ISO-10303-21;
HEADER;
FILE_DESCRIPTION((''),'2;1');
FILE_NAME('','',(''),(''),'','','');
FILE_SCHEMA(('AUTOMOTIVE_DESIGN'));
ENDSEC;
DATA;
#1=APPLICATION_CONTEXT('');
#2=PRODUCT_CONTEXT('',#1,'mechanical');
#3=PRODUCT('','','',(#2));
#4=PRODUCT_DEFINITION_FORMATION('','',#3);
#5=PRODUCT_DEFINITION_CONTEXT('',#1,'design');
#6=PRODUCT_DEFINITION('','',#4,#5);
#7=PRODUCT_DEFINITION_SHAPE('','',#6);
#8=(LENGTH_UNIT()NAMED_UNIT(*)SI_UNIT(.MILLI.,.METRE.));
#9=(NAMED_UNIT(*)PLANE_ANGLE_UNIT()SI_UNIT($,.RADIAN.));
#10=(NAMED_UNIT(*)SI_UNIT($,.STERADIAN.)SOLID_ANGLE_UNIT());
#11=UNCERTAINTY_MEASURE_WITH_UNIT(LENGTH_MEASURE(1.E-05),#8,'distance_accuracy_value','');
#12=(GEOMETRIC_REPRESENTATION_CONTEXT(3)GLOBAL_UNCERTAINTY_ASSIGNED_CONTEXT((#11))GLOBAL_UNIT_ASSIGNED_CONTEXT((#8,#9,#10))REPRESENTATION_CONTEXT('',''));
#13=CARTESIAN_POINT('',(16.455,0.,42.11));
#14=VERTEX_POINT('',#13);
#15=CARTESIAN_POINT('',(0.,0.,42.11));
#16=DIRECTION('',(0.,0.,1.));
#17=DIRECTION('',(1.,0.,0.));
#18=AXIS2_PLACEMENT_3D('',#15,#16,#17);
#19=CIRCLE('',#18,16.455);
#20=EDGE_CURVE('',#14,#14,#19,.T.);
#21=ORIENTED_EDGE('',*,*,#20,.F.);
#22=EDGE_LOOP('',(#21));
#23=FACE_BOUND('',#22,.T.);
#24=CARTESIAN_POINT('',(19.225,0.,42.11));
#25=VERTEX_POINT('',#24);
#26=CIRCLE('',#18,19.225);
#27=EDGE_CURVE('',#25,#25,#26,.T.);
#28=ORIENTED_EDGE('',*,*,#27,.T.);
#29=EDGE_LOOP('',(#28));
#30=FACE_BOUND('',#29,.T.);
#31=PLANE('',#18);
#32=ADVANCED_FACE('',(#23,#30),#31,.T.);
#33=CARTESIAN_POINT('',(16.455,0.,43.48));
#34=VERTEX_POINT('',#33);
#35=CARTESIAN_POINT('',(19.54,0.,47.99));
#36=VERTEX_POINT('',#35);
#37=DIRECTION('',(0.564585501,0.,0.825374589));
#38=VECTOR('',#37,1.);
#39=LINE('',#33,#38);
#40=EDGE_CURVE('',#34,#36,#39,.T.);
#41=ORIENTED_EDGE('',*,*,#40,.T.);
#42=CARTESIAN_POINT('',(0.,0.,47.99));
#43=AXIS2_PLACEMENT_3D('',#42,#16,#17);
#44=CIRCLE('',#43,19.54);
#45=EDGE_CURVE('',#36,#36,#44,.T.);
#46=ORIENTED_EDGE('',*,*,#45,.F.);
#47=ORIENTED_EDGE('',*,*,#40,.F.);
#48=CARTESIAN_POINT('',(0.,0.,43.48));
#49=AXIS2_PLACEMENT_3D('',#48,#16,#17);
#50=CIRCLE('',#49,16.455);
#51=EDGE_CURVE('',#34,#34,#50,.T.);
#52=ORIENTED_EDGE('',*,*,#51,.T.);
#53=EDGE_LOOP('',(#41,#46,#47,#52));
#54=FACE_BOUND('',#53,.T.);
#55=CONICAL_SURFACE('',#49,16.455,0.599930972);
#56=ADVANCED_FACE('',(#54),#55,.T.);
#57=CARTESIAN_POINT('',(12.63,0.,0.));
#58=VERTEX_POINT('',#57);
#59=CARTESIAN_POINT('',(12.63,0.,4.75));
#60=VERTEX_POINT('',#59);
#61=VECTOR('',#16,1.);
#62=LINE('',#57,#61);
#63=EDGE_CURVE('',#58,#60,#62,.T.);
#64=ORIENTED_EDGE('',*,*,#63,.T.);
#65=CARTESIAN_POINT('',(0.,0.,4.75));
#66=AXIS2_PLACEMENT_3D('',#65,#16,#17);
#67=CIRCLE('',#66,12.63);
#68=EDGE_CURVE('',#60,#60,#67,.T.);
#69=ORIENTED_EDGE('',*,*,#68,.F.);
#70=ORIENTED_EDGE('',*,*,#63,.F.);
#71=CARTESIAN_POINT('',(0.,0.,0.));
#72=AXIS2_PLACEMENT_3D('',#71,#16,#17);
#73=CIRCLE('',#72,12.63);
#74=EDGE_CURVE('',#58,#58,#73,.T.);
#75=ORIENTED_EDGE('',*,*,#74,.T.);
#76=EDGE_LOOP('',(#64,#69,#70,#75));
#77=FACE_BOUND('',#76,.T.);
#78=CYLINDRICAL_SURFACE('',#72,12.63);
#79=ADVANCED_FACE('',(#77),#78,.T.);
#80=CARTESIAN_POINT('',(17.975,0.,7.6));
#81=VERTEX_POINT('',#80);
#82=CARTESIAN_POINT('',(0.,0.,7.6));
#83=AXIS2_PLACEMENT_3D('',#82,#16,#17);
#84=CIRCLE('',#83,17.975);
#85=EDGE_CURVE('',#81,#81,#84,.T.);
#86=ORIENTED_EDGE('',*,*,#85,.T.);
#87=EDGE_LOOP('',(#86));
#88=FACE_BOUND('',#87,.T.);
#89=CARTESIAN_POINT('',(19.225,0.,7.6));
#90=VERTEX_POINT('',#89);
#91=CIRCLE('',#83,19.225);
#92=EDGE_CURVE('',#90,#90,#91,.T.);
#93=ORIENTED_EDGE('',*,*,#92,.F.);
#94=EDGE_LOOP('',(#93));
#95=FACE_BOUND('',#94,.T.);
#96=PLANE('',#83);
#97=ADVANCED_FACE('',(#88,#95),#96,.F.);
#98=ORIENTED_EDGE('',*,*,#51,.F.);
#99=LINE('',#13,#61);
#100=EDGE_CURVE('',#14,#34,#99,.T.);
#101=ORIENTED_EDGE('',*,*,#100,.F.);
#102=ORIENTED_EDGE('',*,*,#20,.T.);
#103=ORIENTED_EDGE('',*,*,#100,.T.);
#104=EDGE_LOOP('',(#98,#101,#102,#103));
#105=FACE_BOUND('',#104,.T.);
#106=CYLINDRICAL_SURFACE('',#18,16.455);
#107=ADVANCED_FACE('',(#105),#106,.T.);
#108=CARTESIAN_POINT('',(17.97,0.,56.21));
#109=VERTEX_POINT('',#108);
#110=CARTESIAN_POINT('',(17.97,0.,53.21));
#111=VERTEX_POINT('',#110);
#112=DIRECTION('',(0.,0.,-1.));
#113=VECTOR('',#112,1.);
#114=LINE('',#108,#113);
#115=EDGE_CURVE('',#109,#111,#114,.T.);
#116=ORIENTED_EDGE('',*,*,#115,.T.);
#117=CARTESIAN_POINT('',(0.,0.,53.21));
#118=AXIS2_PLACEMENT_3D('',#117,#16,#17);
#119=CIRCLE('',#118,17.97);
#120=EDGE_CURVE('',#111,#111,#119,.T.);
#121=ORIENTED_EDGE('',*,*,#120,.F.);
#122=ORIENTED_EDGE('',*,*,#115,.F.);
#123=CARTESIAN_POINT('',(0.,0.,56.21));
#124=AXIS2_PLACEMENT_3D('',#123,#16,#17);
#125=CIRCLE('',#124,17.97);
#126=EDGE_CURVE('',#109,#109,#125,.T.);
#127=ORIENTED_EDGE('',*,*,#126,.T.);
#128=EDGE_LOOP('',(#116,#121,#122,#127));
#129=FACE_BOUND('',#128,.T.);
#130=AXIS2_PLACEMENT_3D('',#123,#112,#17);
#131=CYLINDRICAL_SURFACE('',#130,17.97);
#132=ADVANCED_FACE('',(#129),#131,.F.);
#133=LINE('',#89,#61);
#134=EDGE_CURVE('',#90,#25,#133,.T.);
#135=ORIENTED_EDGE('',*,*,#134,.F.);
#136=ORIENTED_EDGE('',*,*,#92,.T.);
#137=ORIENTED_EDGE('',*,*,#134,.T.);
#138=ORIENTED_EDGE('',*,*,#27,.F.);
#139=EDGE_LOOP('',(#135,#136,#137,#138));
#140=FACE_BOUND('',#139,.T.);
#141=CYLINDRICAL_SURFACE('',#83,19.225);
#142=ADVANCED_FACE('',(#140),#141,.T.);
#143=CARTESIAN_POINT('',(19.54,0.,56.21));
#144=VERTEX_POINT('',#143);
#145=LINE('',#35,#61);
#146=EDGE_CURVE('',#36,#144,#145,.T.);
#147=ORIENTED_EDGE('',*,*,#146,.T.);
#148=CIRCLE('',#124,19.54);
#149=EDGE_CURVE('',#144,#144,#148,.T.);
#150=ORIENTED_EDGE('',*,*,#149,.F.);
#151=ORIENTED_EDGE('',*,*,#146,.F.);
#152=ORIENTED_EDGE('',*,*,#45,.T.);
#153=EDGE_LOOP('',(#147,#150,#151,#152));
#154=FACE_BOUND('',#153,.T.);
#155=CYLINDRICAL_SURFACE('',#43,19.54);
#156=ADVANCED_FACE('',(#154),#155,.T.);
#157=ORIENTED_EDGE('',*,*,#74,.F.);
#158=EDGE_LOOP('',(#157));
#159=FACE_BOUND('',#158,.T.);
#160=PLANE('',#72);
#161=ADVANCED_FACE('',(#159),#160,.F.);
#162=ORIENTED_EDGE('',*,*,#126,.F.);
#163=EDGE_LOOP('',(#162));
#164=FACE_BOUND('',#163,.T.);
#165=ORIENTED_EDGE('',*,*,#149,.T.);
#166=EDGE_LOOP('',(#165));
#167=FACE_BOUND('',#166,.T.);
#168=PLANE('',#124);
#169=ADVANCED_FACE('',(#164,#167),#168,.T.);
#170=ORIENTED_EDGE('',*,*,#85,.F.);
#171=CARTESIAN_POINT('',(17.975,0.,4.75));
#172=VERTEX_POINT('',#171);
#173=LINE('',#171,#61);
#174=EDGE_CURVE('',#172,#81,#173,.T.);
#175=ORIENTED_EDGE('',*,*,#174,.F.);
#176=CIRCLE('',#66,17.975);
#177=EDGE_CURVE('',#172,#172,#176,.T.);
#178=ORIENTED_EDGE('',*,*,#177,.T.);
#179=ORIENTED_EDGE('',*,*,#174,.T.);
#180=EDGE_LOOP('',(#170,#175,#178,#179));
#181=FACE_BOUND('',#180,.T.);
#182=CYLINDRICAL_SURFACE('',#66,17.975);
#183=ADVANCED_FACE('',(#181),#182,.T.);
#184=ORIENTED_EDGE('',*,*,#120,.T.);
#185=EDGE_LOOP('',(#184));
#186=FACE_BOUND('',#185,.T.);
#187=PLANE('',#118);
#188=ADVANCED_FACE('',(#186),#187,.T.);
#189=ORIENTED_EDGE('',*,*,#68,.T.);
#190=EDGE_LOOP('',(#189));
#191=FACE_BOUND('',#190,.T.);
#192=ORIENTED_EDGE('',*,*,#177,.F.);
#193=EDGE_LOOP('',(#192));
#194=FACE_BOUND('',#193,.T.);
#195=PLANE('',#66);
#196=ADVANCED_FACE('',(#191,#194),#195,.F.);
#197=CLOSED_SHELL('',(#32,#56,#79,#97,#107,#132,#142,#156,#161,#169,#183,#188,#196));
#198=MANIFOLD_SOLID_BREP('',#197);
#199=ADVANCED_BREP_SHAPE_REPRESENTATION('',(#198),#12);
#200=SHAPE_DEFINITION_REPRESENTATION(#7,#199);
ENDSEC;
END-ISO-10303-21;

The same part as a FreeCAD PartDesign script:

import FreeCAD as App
import Part
import Sketcher
Q = App.Units.Quantity

doc = App.newDocument("Part")
params = doc.addObject("Spreadsheet::Sheet", "Params")
for row, (alias, value) in enumerate([
    ("sketch1_height", "3 mm"),
    ("sketch1_width", "12.63 mm"),
    ("sketch1_width2", "1.25 mm"),
    ("sketch1_width3", "2.77 mm"),
    ("sketch1_width4", "1.57 mm"),
    ("revolution_angle", "360 deg"),
], start=1):
    params.set(f"A{row}", alias)
    params.set(f"B{row}", "=" + value)
    params.setAlias(f"B{row}", alias)

body = doc.addObject("PartDesign::Body", "Body")

sketch1 = body.newObject("Sketcher::SketchObject", "Sketch")
sketch1.AttachmentSupport = (doc.getObject("XZ_Plane"), [""])
sketch1.MapMode = "FlatFace"
sketch1.addGeometry([
    Part.LineSegment(App.Vector(0, 0, 0), App.Vector(12.6, 0, 0)),
    Part.LineSegment(App.Vector(12.6, 0, 0), App.Vector(12.6, 4.8, 0)),
    Part.LineSegment(App.Vector(12.6, 4.8, 0), App.Vector(18, 4.8, 0)),
    Part.LineSegment(App.Vector(18, 4.8, 0), App.Vector(18, 7.6, 0)),
    Part.LineSegment(App.Vector(18, 7.6, 0), App.Vector(19.2, 7.6, 0)),
    Part.LineSegment(App.Vector(19.2, 7.6, 0), App.Vector(19.2, 42.1, 0)),
    Part.LineSegment(App.Vector(19.2, 42.1, 0), App.Vector(16.5, 42.1, 0)),
    Part.LineSegment(App.Vector(16.5, 42.1, 0), App.Vector(16.5, 43.5, 0)),
    Part.LineSegment(App.Vector(16.5, 43.5, 0), App.Vector(19.5, 48, 0)),
    Part.LineSegment(App.Vector(19.5, 48, 0), App.Vector(19.5, 56.2, 0)),
    Part.LineSegment(App.Vector(19.5, 56.2, 0), App.Vector(18, 56.2, 0)),
    Part.LineSegment(App.Vector(18, 56.2, 0), App.Vector(18, 53.2, 0)),
    Part.LineSegment(App.Vector(18, 53.2, 0), App.Vector(0, 53.2, 0)),
    Part.LineSegment(App.Vector(0, 53.2, 0), App.Vector(0, 0, 0)),
], False)
sketch1.addConstraint([
    Sketcher.Constraint("Coincident", 0, 2, 1, 1),
    Sketcher.Constraint("Coincident", 1, 2, 2, 1),
    Sketcher.Constraint("Coincident", 2, 2, 3, 1),
    Sketcher.Constraint("Coincident", 3, 2, 4, 1),
    Sketcher.Constraint("Coincident", 4, 2, 5, 1),
    Sketcher.Constraint("Coincident", 5, 2, 6, 1),
    Sketcher.Constraint("Coincident", 6, 2, 7, 1),
    Sketcher.Constraint("Coincident", 7, 2, 8, 1),
    Sketcher.Constraint("Coincident", 8, 2, 9, 1),
    Sketcher.Constraint("Coincident", 9, 2, 10, 1),
    Sketcher.Constraint("Coincident", 10, 2, 11, 1),
    Sketcher.Constraint("Coincident", 11, 2, 12, 1),
    Sketcher.Constraint("Coincident", 12, 2, 13, 1),
    Sketcher.Constraint("Coincident", 13, 2, 0, 1),
    Sketcher.Constraint("Horizontal", 0),
    Sketcher.Constraint("Vertical", 1),
    Sketcher.Constraint("Horizontal", 2),
    Sketcher.Constraint("Vertical", 3),
    Sketcher.Constraint("Horizontal", 4),
    Sketcher.Constraint("Vertical", 5),
    Sketcher.Constraint("Horizontal", 6),
    Sketcher.Constraint("Vertical", 7),
    Sketcher.Constraint("Vertical", 9),
    Sketcher.Constraint("Horizontal", 10),
    Sketcher.Constraint("Vertical", 11),
    Sketcher.Constraint("Horizontal", 12),
    Sketcher.Constraint("Vertical", 13),
    Sketcher.Constraint("Coincident", 13, 2, -1, 1),
    Sketcher.Constraint("DistanceY", 11, 2, 11, 1, Q("3 mm")),
    Sketcher.Constraint("DistanceX", 0, 1, 0, 2, Q("12.63 mm")),
    Sketcher.Constraint("DistanceX", 4, 1, 4, 2, Q("1.25 mm")),
    Sketcher.Constraint("DistanceX", 6, 2, 6, 1, Q("2.77 mm")),
    Sketcher.Constraint("DistanceX", 10, 2, 10, 1, Q("1.57 mm")),
    Sketcher.Constraint("DistanceX", 12, 2, 12, 1, Q("17.97 mm")),
    Sketcher.Constraint("DistanceY", 1, 1, 1, 2, Q("4.75 mm")),
    Sketcher.Constraint("DistanceY", 3, 1, 3, 2, Q("2.85 mm")),
    Sketcher.Constraint("DistanceY", 5, 1, 5, 2, Q("34.51 mm")),
    Sketcher.Constraint("DistanceY", 7, 1, 7, 2, Q("1.37 mm")),
    Sketcher.Constraint("DistanceY", 9, 1, 9, 2, Q("8.22 mm")),
    Sketcher.Constraint("DistanceY", 13, 2, 13, 1, Q("53.21 mm")),
    Sketcher.Constraint("DistanceX", 2, 1, 2, 2, Q("5.345 mm")),
])
sketch1.setExpression("Constraints[28]", "Params.sketch1_height")
sketch1.setExpression("Constraints[29]", "Params.sketch1_width")
sketch1.setExpression("Constraints[30]", "Params.sketch1_width2")
sketch1.setExpression("Constraints[31]", "Params.sketch1_width3")
sketch1.setExpression("Constraints[32]", "Params.sketch1_width4")
revolution = body.newObject("PartDesign::Revolution", "Revolution")
revolution.Profile = sketch1
revolution.ReferenceAxis = (sketch1, ["V_Axis"])
revolution.setExpression("Angle", "Params.revolution_angle")

doc.recompute()
